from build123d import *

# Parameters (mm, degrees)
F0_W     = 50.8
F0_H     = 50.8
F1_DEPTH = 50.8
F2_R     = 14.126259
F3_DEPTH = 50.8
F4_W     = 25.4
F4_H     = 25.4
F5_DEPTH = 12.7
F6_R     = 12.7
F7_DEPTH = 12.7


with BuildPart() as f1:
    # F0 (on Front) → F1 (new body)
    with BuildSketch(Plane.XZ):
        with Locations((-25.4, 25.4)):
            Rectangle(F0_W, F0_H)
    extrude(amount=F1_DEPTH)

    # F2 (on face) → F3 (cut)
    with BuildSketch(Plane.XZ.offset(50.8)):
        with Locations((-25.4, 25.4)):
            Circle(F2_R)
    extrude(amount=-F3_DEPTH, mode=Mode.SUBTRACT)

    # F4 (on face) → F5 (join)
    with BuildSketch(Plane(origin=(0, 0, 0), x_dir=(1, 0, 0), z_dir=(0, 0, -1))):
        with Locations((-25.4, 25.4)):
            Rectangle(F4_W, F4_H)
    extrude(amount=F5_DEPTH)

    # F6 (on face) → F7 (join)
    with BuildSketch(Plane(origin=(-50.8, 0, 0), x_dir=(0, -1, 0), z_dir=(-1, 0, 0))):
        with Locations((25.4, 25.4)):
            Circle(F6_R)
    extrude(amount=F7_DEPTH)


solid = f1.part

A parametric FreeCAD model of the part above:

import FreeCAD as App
import Part
import Sketcher

V = App.Vector
Q = App.Units.Quantity

doc = App.newDocument("Part")
body = doc.addObject("PartDesign::Body", "Body")

# Sketch on XZ plane
sketch1 = body.newObject("Sketcher::SketchObject", "Sketch")
sketch1.AttachmentSupport = (doc.getObject("XZ_Plane"), [""])
sketch1.MapMode = "FlatFace"
sketch1.addGeometry([
    Part.LineSegment(V(-51, 51, 0), V(-51, 0, 0)),
    Part.LineSegment(V(-51, 0, 0), V(0, 0, 0)),
    Part.LineSegment(V(0, 0, 0), V(0, 51, 0)),
    Part.LineSegment(V(0, 51, 0), V(-51, 51, 0)),
], False)
sketch1.addConstraint([
    Sketcher.Constraint("Coincident", 0, 2, 1, 1),
    Sketcher.Constraint("Coincident", 1, 2, 2, 1),
    Sketcher.Constraint("Coincident", 2, 2, 3, 1),
    Sketcher.Constraint("Coincident", 3, 2, 0, 1),
    Sketcher.Constraint("Vertical", 0),
    Sketcher.Constraint("Horizontal", 1),
    Sketcher.Constraint("Vertical", 2),
    Sketcher.Constraint("Horizontal", 3),
    Sketcher.Constraint("Coincident", 1, 2, -1, 1),
    Sketcher.Constraint("Equal", 3, 0),
    Sketcher.Constraint("DistanceX", 1, 1, 1, 2, Q("2 in")),
])
pad1 = body.newObject("PartDesign::Pad", "Pad")
pad1.Profile = sketch1
pad1.Length = Q("2 in")

# Sketch on XZ plane
sketch2 = body.newObject("Sketcher::SketchObject", "Sketch001")
sketch2.AttachmentSupport = (doc.getObject("XZ_Plane"), [""])
sketch2.MapMode = "FlatFace"
sketch2.AttachmentOffset = App.Placement(V(0, 0, 2 * 25.4), App.Rotation())
sketch2.addGeometry(Part.Circle(V(-25, 25, 0), V(0, 0, 1), 14), False)
sketch2.addConstraint([
    Sketcher.Constraint("DistanceX", 0, 3, -1, 1, Q("1 in")),
    Sketcher.Constraint("DistanceY", -1, 1, 0, 3, Q("1 in")),
    Sketcher.Constraint("Diameter", 0, Q("28.252518 mm")),
])
pocket1 = body.newObject("PartDesign::Pocket", "Pocket")
pocket1.Profile = sketch2
pocket1.Length = Q("2 in")

# Sketch on XY plane
sketch3 = body.newObject("Sketcher::SketchObject", "Sketch002")
sketch3.AttachmentSupport = (doc.getObject("XY_Plane"), [""])
sketch3.MapMode = "FlatFace"
sketch3.addGeometry([
    Part.LineSegment(V(-38, -38, 0), V(-38, -13, 0)),
    Part.LineSegment(V(-38, -13, 0), V(-13, -13, 0)),
    Part.LineSegment(V(-13, -13, 0), V(-13, -38, 0)),
    Part.LineSegment(V(-13, -38, 0), V(-38, -38, 0)),
], False)
sketch3.addConstraint([
    Sketcher.Constraint("Coincident", 0, 2, 1, 1),
    Sketcher.Constraint("Coincident", 1, 2, 2, 1),
    Sketcher.Constraint("Coincident", 2, 2, 3, 1),
    Sketcher.Constraint("Coincident", 3, 2, 0, 1),
    Sketcher.Constraint("Vertical", 0),
    Sketcher.Constraint("Horizontal", 1),
    Sketcher.Constraint("Vertical", 2),
    Sketcher.Constraint("Horizontal", 3),
    Sketcher.Constraint("Equal", 3, 0),
    Sketcher.Constraint("DistanceX", 1, 1, 1, 2, Q("1 in")),
    Sketcher.Constraint("DistanceX", 0, 2, -1, 1, Q("1.5 in")),
    Sketcher.Constraint("DistanceY", 0, 2, -1, 1, Q("0.5 in")),
])
pad2 = body.newObject("PartDesign::Pad", "Pad001")
pad2.Profile = sketch3
pad2.Length = Q("0.5 in")
pad2.Reversed = True

# Sketch on YZ plane
sketch4 = body.newObject("Sketcher::SketchObject", "Sketch003")
sketch4.AttachmentSupport = (doc.getObject("YZ_Plane"), [""])
sketch4.MapMode = "FlatFace"
sketch4.AttachmentOffset = App.Placement(V(0, 0, -2 * 25.4), App.Rotation())
sketch4.addGeometry(Part.Circle(V(-25, 25, 0), V(0, 0, 1), 13), False)
sketch4.addConstraint([
    Sketcher.Constraint("Diameter", 0, Q("1 in")),
    Sketcher.Constraint("DistanceX", 0, 3, -1, 1, Q("1 in")),
    Sketcher.Constraint("DistanceY", -1, 1, 0, 3, Q("1 in")),
])
pad3 = body.newObject("PartDesign::Pad", "Pad002")
pad3.Profile = sketch4
pad3.Length = Q("0.5 in")
pad3.Reversed = True

doc.recompute()
